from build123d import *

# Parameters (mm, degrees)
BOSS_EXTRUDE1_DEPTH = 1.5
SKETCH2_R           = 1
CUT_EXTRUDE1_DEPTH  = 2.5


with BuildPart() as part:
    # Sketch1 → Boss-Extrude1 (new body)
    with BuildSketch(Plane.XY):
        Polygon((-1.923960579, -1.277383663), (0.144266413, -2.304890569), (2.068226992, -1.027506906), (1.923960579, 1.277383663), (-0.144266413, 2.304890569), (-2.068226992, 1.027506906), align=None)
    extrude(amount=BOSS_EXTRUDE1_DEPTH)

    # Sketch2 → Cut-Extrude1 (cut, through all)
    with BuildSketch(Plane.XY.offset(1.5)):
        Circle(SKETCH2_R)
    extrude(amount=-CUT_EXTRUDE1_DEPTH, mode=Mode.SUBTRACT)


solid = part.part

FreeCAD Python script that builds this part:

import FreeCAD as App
import Part
import Sketcher

doc = App.newDocument("Part")
body = doc.addObject("PartDesign::Body", "Body")

# Sketch on XY plane
sketch1 = doc.addObject("Sketcher::SketchObject", "Sketch")
body.addObject(sketch1)
sketch1.AttachmentSupport = (doc.XY_Plane, [""])
sketch1.MapMode = "FlatFace"
sketch1.addGeometry([
    Part.LineSegment(App.Vector(-1.9, -1.3, 0), App.Vector(0.1, -2.3, 0)),  # 0
    Part.LineSegment(App.Vector(0.1, -2.3, 0), App.Vector(2.1, -1, 0)),  # 1
    Part.LineSegment(App.Vector(2.1, -1, 0), App.Vector(1.9, 1.3, 0)),  # 2
    Part.LineSegment(App.Vector(1.9, 1.3, 0), App.Vector(-0.1, 2.3, 0)),  # 3
    Part.LineSegment(App.Vector(-0.1, 2.3, 0), App.Vector(-2.1, 1, 0)),  # 4
    Part.LineSegment(App.Vector(-2.1, 1, 0), App.Vector(-1.9, -1.3, 0)),  # 5
], False)
sketch1.addConstraint([
    Sketcher.Constraint("Coincident", 0, 2, 1, 1),
    Sketcher.Constraint("Coincident", 1, 2, 2, 1),
    Sketcher.Constraint("Coincident", 2, 2, 3, 1),
    Sketcher.Constraint("Coincident", 3, 2, 4, 1),
    Sketcher.Constraint("Coincident", 4, 2, 5, 1),
    Sketcher.Constraint("Coincident", 5, 2, 0, 1),
    Sketcher.Constraint("Symmetric", 0, 2, 3, 2, -1, 1),
    Sketcher.Constraint("Symmetric", 1, 2, 4, 2, -1, 1),
    Sketcher.Constraint("Symmetric", 2, 2, 5, 2, -1, 1),
    Sketcher.Constraint("Equal", 0, 1),
    Sketcher.Constraint("Equal", 1, 2),
    Sketcher.Constraint("Distance", 0, 2.309401),
    Sketcher.Constraint("DistanceY", 0, 2, -1, 1, 2.304891),
    Sketcher.Constraint("DistanceX", -1, 1, 2, 2, 1.923961),
    Sketcher.Constraint("DistanceX", 0, 2, 1, 2, 1.923961),
])
pad1 = doc.addObject("PartDesign::Pad", "Pad")
body.addObject(pad1)
pad1.Profile = sketch1
pad1.Length = 1.5

# Sketch on XY plane
sketch2 = doc.addObject("Sketcher::SketchObject", "Sketch001")
body.addObject(sketch2)
sketch2.AttachmentSupport = (doc.XY_Plane, [""])
sketch2.MapMode = "FlatFace"
sketch2.AttachmentOffset = App.Placement(App.Vector(0, 0, 1.5), App.Rotation())
sketch2.addGeometry(Part.Circle(App.Vector(0, 0, 0), App.Vector(0, 0, 1), 1), False)
sketch2.addConstraint([
    Sketcher.Constraint("Coincident", 0, 3, -1, 1),
    Sketcher.Constraint("Diameter", 0, 2.0),
])
pocket1 = doc.addObject("PartDesign::Pocket", "Pocket")
body.addObject(pocket1)
pocket1.Profile = sketch2
pocket1.Type = "ThroughAll"

doc.recompute()
